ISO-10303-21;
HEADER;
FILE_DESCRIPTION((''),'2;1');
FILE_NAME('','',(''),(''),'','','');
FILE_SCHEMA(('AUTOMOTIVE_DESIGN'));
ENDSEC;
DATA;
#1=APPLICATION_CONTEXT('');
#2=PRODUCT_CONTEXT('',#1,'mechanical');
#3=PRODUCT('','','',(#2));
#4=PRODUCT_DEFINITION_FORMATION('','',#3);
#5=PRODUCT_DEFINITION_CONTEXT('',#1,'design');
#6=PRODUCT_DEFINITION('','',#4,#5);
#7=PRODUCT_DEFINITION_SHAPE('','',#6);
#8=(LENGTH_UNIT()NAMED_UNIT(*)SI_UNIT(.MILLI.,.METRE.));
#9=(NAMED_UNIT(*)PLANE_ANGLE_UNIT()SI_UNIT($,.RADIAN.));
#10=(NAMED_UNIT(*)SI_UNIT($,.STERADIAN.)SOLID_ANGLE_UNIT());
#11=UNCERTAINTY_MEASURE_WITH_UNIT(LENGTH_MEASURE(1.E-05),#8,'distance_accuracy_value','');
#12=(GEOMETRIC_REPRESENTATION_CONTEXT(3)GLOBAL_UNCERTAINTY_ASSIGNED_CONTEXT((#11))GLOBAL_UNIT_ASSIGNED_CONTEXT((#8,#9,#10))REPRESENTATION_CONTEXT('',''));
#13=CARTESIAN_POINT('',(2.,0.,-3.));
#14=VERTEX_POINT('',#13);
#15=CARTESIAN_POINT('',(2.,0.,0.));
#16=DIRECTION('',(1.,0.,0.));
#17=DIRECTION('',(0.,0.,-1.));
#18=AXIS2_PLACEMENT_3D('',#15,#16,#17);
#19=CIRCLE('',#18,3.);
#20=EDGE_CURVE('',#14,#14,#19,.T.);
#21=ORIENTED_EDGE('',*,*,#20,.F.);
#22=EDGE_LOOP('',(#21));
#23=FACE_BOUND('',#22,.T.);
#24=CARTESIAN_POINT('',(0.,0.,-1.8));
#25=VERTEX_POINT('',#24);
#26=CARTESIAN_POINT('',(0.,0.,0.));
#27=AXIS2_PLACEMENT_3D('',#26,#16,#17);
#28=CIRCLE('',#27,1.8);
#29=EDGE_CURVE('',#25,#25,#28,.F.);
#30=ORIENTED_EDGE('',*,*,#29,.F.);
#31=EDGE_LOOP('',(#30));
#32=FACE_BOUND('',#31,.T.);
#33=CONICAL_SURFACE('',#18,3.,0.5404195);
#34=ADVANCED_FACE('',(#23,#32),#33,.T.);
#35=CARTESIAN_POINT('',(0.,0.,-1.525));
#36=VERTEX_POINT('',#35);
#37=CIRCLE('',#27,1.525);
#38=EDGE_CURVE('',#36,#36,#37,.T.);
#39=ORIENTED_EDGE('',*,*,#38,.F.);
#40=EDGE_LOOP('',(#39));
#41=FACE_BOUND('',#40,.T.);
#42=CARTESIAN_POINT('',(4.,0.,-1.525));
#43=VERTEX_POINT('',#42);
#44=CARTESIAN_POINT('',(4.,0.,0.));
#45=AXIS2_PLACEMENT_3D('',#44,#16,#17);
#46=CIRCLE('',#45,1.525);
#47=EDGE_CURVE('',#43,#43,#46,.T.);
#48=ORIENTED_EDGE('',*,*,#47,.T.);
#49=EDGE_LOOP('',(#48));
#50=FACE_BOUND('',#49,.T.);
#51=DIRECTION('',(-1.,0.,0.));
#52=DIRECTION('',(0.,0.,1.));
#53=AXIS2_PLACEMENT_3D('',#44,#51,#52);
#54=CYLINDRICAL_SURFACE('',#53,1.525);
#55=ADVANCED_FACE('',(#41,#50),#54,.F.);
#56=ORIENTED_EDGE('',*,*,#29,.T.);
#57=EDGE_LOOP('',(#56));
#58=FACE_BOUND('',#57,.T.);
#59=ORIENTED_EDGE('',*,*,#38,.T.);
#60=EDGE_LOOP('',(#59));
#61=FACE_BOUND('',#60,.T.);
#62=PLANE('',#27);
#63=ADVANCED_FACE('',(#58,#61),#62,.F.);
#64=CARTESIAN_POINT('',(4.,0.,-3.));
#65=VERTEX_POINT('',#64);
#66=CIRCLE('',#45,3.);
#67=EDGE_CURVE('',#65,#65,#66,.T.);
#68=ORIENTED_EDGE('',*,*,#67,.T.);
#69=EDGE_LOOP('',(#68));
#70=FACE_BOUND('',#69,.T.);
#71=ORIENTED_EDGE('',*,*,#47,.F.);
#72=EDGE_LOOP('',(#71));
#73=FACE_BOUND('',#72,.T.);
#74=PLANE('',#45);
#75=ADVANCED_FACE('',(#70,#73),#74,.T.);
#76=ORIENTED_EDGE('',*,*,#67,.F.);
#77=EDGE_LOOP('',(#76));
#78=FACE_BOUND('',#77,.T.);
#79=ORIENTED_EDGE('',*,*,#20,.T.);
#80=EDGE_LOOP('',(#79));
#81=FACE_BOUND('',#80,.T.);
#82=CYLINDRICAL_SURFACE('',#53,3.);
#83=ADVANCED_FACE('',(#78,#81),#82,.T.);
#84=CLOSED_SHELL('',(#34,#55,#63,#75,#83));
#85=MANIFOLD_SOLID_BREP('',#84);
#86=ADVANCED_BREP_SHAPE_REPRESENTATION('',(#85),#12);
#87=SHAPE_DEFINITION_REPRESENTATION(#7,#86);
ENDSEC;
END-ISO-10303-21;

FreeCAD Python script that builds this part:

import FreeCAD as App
import Part
import Sketcher
from FreeCAD import Vector
Q = App.Units.Quantity


def edges_at(feature, points):
    """Names of the edges that pass closest to the given points."""
    edges = feature.Shape.Edges
    near = lambda p: min(range(len(edges)), key=lambda i: edges[i].distToShape(Part.Vertex(*p))[0])
    return sorted({f"Edge{near(p) + 1}" for p in points})

doc = App.newDocument("Part")
params = doc.addObject("Spreadsheet::Sheet", "Params")
for row, (alias, value) in enumerate([
    ("sketch1_diameter", "6 mm"),
    ("sketch1_diameter2", "3.05 mm"),
    ("pad1_length", "4 mm"),
    ("chamfer_size", "1.2 mm"),
    ("chamfer_size2", "2 mm"),
], start=1):
    params.set(f"A{row}", alias)
    params.set(f"B{row}", "=" + value)
    params.setAlias(f"B{row}", alias)

body = doc.addObject("PartDesign::Body", "Body")

# Sketch on YZ plane
sketch1 = body.newObject("Sketcher::SketchObject", "Sketch")
sketch1.AttachmentSupport = (doc.getObject("YZ_Plane"), [""])
sketch1.MapMode = "FlatFace"
sketch1.addGeometry([
    Part.Circle(Vector(0, 0, 0), Vector(0, 0, 1), 3),
    Part.Circle(Vector(0, 0, 0), Vector(0, 0, 1), 1.5),
], False)
sketch1.addConstraint([
    Sketcher.Constraint("Coincident", 0, 3, -1, 1),
    Sketcher.Constraint("Coincident", 1, 3, -1, 1),
    Sketcher.Constraint("Diameter", 0, Q("6 mm")),
    Sketcher.Constraint("Diameter", 1, Q("3.05 mm")),
])
sketch1.setExpression("Constraints[2]", "Params.sketch1_diameter")
sketch1.setExpression("Constraints[3]", "Params.sketch1_diameter2")
pad1 = body.newObject("PartDesign::Pad", "Pad")
pad1.Profile = sketch1
pad1.setExpression("Length", "Params.pad1_length")
doc.recompute()

chamfer = body.newObject("PartDesign::Chamfer", "Chamfer")
chamfer.Base = (pad1, edges_at(pad1, [(0, 0, 3)]))
chamfer.ChamferType = "Two distances"
chamfer.setExpression("Size", "Params.chamfer_size")
chamfer.setExpression("Size2", "Params.chamfer_size2")
chamfer.FlipDirection = True

doc.recompute()
